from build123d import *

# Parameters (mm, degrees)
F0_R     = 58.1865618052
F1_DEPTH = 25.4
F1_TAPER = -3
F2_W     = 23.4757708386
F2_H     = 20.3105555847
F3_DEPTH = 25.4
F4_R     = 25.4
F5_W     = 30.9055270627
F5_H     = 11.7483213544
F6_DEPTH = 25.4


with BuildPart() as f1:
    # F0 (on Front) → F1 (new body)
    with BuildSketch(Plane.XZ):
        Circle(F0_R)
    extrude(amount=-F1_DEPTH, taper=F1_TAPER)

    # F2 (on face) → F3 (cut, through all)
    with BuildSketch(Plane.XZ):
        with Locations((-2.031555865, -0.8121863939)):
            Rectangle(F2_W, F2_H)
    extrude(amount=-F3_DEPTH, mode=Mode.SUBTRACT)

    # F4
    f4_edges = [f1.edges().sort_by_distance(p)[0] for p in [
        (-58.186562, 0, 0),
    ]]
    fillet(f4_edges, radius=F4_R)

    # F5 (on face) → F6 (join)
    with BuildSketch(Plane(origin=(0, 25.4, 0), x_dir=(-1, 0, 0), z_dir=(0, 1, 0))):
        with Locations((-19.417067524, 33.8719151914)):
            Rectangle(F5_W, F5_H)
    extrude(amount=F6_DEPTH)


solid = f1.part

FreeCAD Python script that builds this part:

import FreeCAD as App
import Part
import Sketcher

V = App.Vector
Q = App.Units.Quantity


def edges_at(feature, points):
    """Names of the edges that pass closest to the given points."""
    edges = feature.Shape.Edges
    near = lambda p: min(range(len(edges)), key=lambda i: edges[i].distToShape(Part.Vertex(*p))[0])
    return sorted({f"Edge{near(p) + 1}" for p in points})

doc = App.newDocument("Part")
body = doc.addObject("PartDesign::Body", "Body")

# Sketch on XZ plane
sketch1 = body.newObject("Sketcher::SketchObject", "Sketch")
sketch1.AttachmentSupport = (doc.getObject("XZ_Plane"), [""])
sketch1.MapMode = "FlatFace"
sketch1.addGeometry(Part.Circle(V(0, 0, 0), V(0, 0, 1), 58), False)
sketch1.addConstraint([
    Sketcher.Constraint("Coincident", 0, 3, -1, 1),
    Sketcher.Constraint("Diameter", 0, Q("116.373124 mm")),
])
pad1 = body.newObject("PartDesign::Pad", "Pad")
pad1.Profile = sketch1
pad1.Length = Q("1 in")
pad1.Reversed = True
pad1.TaperAngle = 3

# Sketch on XZ plane
sketch2 = body.newObject("Sketcher::SketchObject", "Sketch001")
sketch2.AttachmentSupport = (doc.getObject("XZ_Plane"), [""])
sketch2.MapMode = "FlatFace"
sketch2.addGeometry([
    Part.LineSegment(V(-14, 9, 0), V(-14, -11, 0)),
    Part.LineSegment(V(-14, -11, 0), V(10, -11, 0)),
    Part.LineSegment(V(10, -11, 0), V(10, 9, 0)),
    Part.LineSegment(V(10, 9, 0), V(-14, 9, 0)),
], False)
sketch2.addConstraint([
    Sketcher.Constraint("Coincident", 0, 2, 1, 1),
    Sketcher.Constraint("Coincident", 1, 2, 2, 1),
    Sketcher.Constraint("Coincident", 2, 2, 3, 1),
    Sketcher.Constraint("Coincident", 3, 2, 0, 1),
    Sketcher.Constraint("Vertical", 0),
    Sketcher.Constraint("Horizontal", 1),
    Sketcher.Constraint("Vertical", 2),
    Sketcher.Constraint("Horizontal", 3),
    Sketcher.Constraint("DistanceX", 1, 1, 1, 2, Q("23.475771 mm")),
    Sketcher.Constraint("DistanceY", 0, 2, 0, 1, Q("20.310556 mm")),
    Sketcher.Constraint("DistanceX", 0, 2, -1, 1, Q("13.769441 mm")),
    Sketcher.Constraint("DistanceY", -1, 1, 2, 2, Q("9.343091 mm")),
])
pocket1 = body.newObject("PartDesign::Pocket", "Pocket")
pocket1.Profile = sketch2
pocket1.Type = "ThroughAll"
doc.recompute()

fillet = body.newObject("PartDesign::Fillet", "Fillet")
fillet.Base = (pocket1, edges_at(pocket1, [(-58.187, 0, 0)]))
fillet.Radius = Q("1 in")

# Sketch on XZ plane
sketch3 = body.newObject("Sketcher::SketchObject", "Sketch002")
sketch3.AttachmentSupport = (doc.getObject("XZ_Plane"), [""])
sketch3.MapMode = "FlatFace"
sketch3.AttachmentOffset = App.Placement(V(0, 0, -1 * 25.4), App.Rotation())
sketch3.addGeometry([
    Part.LineSegment(V(35, 40, 0), V(35, 28, 0)),
    Part.LineSegment(V(35, 28, 0), V(4, 28, 0)),
    Part.LineSegment(V(4, 28, 0), V(4, 40, 0)),
    Part.LineSegment(V(4, 40, 0), V(35, 40, 0)),
], False)
sketch3.addConstraint([
    Sketcher.Constraint("Coincident", 0, 2, 1, 1),
    Sketcher.Constraint("Coincident", 1, 2, 2, 1),
    Sketcher.Constraint("Coincident", 2, 2, 3, 1),
    Sketcher.Constraint("Coincident", 3, 2, 0, 1),
    Sketcher.Constraint("Vertical", 0),
    Sketcher.Constraint("Horizontal", 1),
    Sketcher.Constraint("Vertical", 2),
    Sketcher.Constraint("Horizontal", 3),
    Sketcher.Constraint("DistanceY", 0, 2, 0, 1, Q("11.748321 mm")),
    Sketcher.Constraint("DistanceX", 1, 2, 1, 1, Q("30.905527 mm")),
    Sketcher.Constraint("DistanceX", -1, 1, 0, 2, Q("34.869831 mm")),
    Sketcher.Constraint("DistanceY", -1, 1, 0, 2, Q("27.997755 mm")),
])
pad2 = body.newObject("PartDesign::Pad", "Pad001")
pad2.Profile = sketch3
pad2.Length = Q("1 in")
pad2.Reversed = True

doc.recompute()
